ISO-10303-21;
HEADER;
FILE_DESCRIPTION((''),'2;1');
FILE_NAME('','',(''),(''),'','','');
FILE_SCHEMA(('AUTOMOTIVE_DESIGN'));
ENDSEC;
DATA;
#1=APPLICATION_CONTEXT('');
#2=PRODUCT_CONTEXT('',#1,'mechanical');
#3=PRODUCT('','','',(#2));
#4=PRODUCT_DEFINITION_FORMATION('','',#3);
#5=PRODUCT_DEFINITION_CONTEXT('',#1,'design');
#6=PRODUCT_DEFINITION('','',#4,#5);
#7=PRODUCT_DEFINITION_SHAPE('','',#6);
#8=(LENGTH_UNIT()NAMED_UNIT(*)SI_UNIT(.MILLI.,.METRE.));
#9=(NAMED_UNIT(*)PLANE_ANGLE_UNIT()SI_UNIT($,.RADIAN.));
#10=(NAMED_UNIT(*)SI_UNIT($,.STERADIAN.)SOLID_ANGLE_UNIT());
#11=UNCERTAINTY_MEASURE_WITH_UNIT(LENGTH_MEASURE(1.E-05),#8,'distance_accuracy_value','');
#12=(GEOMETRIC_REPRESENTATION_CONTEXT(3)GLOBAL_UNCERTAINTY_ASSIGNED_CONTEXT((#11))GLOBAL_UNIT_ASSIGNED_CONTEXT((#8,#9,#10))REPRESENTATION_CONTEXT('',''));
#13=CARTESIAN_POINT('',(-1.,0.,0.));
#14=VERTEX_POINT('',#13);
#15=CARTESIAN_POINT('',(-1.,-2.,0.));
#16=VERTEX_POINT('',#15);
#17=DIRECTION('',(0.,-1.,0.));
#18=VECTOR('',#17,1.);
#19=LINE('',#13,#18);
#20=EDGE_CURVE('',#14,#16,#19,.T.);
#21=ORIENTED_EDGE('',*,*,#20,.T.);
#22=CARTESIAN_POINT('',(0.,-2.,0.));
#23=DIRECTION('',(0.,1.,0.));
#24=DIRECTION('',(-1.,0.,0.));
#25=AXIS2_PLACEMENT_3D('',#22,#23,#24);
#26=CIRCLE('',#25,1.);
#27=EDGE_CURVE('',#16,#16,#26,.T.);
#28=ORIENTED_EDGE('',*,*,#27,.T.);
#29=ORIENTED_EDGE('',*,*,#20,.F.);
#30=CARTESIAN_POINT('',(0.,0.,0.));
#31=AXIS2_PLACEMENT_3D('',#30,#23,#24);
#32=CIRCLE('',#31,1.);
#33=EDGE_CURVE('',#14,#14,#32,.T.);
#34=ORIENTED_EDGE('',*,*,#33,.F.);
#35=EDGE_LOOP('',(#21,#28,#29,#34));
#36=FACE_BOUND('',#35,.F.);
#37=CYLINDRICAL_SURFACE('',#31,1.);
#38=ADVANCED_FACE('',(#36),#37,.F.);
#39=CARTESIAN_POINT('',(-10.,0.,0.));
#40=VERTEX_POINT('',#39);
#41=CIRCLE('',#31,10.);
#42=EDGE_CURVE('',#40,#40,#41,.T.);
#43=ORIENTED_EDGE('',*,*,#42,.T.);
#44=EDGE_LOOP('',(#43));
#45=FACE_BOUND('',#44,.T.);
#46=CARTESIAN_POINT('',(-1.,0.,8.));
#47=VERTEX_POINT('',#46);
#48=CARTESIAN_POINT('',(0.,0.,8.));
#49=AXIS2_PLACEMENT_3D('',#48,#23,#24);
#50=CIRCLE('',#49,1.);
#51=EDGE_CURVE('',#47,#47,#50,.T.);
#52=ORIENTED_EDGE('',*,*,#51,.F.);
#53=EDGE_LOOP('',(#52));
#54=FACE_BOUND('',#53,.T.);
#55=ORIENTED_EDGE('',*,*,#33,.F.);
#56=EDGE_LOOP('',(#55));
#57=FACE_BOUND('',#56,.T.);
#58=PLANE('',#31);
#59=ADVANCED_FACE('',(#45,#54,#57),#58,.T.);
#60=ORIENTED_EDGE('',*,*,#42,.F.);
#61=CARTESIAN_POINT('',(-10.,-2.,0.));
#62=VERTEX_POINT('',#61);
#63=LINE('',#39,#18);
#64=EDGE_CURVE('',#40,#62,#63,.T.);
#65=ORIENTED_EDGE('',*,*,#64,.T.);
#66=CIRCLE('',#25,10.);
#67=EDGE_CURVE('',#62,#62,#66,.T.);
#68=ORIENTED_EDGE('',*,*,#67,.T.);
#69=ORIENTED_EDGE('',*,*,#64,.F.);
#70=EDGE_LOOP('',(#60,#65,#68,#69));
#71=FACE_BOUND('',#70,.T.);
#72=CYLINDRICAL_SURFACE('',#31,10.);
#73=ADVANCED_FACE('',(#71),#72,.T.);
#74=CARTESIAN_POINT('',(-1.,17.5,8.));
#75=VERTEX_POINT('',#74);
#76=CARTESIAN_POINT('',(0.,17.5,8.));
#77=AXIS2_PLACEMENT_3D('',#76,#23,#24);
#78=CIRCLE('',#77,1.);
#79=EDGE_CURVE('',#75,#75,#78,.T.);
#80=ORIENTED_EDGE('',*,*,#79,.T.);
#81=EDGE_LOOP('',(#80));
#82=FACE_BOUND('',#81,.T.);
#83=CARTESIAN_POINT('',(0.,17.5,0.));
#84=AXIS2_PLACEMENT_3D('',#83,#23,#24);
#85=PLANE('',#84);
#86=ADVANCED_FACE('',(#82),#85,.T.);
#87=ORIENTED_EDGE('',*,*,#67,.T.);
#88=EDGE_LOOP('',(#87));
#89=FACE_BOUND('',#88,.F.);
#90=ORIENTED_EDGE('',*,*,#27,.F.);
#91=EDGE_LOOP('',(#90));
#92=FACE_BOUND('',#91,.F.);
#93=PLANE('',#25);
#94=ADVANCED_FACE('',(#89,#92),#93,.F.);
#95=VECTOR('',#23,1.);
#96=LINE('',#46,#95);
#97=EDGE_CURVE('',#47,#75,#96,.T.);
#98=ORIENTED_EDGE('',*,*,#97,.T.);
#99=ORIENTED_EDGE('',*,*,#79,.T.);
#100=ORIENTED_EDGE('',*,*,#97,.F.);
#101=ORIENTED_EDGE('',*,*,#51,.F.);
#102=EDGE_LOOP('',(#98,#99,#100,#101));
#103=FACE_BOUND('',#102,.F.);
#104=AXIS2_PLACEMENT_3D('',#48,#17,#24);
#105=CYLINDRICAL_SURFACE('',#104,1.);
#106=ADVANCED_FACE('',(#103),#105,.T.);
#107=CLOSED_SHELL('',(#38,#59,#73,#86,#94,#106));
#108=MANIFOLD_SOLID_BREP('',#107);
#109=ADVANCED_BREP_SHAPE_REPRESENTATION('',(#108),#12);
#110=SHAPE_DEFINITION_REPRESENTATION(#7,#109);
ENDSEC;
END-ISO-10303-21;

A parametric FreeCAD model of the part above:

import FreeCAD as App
import Part
import Sketcher
Q = App.Units.Quantity

doc = App.newDocument("Part")
params = doc.addObject("Spreadsheet::Sheet", "Params")
for row, (alias, value) in enumerate([
    ("sketch1_diameter", "20 mm"),
    ("sketch1_diameter2", "2 mm"),
    ("pad1_length", "2 mm"),
    ("sketch2_diameter", "2 mm"),
    ("pad2_length", "17.5 mm"),
], start=1):
    params.set(f"A{row}", alias)
    params.set(f"B{row}", "=" + value)
    params.setAlias(f"B{row}", alias)

body = doc.addObject("PartDesign::Body", "Body")

# Sketch on XZ plane
sketch1 = body.newObject("Sketcher::SketchObject", "Sketch")
sketch1.AttachmentSupport = (doc.getObject("XZ_Plane"), [""])
sketch1.MapMode = "FlatFace"
sketch1.addGeometry([
    Part.Circle(App.Vector(0, 0, 0), App.Vector(0, 0, 1), 10),
    Part.Circle(App.Vector(0, 0, 0), App.Vector(0, 0, 1), 1),
], False)
sketch1.addConstraint([
    Sketcher.Constraint("Coincident", 0, 3, -1, 1),
    Sketcher.Constraint("Coincident", 1, 3, -1, 1),
    Sketcher.Constraint("Diameter", 0, Q("20 mm")),
    Sketcher.Constraint("Diameter", 1, Q("2 mm")),
])
sketch1.setExpression("Constraints[2]", "Params.sketch1_diameter")
sketch1.setExpression("Constraints[3]", "Params.sketch1_diameter2")
pad1 = body.newObject("PartDesign::Pad", "Pad")
pad1.Profile = sketch1
pad1.setExpression("Length", "Params.pad1_length")

# Sketch on XZ plane
sketch2 = body.newObject("Sketcher::SketchObject", "Sketch001")
sketch2.AttachmentSupport = (doc.getObject("XZ_Plane"), [""])
sketch2.MapMode = "FlatFace"
sketch2.addGeometry(Part.Circle(App.Vector(0, 8, 0), App.Vector(0, 0, 1), 1), False)
sketch2.addConstraint([
    Sketcher.Constraint("PointOnObject", 0, 3, -2),
    Sketcher.Constraint("Diameter", 0, Q("2 mm")),
    Sketcher.Constraint("DistanceY", -1, 1, 0, 3, Q("8 mm")),
])
sketch2.setExpression("Constraints[1]", "Params.sketch2_diameter")
pad2 = body.newObject("PartDesign::Pad", "Pad001")
pad2.Profile = sketch2
pad2.setExpression("Length", "Params.pad2_length")
pad2.Reversed = True

doc.recompute()
